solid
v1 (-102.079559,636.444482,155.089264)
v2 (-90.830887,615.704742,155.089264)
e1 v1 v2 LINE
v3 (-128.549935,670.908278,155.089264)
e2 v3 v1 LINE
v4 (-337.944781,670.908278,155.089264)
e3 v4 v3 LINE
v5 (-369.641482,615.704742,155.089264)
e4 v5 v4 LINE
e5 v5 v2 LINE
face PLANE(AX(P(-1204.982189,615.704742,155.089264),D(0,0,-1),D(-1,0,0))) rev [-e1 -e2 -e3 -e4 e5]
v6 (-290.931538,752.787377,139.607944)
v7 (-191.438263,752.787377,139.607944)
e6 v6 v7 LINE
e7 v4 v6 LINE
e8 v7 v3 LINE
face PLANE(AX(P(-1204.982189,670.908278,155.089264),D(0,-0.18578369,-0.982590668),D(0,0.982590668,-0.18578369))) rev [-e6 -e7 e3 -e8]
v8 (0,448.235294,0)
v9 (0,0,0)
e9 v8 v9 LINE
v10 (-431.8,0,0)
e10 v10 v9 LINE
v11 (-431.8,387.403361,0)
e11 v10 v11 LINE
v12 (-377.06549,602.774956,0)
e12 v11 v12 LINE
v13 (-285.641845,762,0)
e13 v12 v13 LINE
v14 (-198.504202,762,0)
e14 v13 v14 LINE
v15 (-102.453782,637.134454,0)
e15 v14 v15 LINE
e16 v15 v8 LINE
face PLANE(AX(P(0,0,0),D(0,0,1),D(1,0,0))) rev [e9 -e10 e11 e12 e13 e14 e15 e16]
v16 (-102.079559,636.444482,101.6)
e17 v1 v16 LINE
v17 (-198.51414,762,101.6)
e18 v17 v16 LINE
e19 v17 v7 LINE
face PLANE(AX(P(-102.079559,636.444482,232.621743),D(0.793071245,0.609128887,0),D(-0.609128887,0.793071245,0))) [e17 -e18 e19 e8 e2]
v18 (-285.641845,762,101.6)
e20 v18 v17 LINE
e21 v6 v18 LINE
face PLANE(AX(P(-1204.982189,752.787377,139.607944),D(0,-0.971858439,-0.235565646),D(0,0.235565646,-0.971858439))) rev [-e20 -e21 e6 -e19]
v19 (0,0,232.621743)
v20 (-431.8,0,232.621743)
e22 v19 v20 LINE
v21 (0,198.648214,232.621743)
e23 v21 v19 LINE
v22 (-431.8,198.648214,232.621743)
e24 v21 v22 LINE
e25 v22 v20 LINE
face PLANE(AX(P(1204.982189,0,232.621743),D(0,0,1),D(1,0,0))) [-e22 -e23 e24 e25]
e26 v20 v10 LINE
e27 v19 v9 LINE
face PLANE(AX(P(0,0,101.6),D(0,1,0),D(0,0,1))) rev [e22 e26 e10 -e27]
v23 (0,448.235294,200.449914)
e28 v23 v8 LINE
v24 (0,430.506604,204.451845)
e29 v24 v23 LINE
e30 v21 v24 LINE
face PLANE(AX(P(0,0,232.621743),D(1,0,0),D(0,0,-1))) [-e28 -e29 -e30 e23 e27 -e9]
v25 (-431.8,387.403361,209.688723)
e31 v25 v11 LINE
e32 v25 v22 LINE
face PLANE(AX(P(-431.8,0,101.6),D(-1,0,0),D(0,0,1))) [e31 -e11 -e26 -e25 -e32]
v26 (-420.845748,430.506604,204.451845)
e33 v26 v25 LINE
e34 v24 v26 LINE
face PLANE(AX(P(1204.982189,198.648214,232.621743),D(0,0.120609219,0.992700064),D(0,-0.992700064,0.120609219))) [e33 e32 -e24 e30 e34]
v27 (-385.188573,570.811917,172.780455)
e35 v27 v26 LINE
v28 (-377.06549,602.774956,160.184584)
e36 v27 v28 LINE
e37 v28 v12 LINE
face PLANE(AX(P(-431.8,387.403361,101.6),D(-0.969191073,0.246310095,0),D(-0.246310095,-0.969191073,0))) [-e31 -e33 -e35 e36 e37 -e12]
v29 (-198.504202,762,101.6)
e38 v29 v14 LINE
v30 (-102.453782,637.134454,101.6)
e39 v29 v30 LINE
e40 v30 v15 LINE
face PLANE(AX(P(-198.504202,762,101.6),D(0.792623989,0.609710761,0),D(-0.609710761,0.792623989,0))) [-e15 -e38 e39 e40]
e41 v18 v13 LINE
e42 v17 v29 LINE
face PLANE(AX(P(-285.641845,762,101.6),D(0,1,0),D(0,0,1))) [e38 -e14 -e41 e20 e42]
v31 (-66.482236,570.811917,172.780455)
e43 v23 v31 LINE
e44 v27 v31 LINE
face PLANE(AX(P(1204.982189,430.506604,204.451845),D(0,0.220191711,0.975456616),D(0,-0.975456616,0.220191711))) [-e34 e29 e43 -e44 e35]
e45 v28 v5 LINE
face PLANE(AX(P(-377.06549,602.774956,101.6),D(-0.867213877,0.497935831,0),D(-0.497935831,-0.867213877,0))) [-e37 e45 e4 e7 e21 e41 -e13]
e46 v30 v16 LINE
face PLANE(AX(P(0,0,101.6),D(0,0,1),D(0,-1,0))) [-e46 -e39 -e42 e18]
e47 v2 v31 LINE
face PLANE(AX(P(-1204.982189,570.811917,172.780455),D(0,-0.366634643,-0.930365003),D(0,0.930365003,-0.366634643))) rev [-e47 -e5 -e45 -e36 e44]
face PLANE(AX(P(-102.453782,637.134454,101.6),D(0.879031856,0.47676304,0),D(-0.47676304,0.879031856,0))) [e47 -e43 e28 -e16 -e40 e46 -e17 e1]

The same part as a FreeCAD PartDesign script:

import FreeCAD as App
import Part
import Sketcher

V = App.Vector
Q = App.Units.Quantity

doc = App.newDocument("Part")
params = doc.addObject("Spreadsheet::Sheet", "Params")
for row, (alias, value) in enumerate([
    ("sketch1_width", "17 in"),
    ("pad1_length", "4 in"),
    ("sketch2_width", "30 in"),
    ("pad2_length", "17 in"),
], start=1):
    params.set(f"A{row}", alias)
    params.set(f"B{row}", "=" + value)
    params.setAlias(f"B{row}", alias)

body = doc.addObject("PartDesign::Body", "Body")

# Sketch on XY plane
sketch1 = doc.addObject("Sketcher::SketchObject", "Sketch")
body.addObject(sketch1)
sketch1.AttachmentSupport = (doc.XY_Plane, [""])
sketch1.MapMode = "FlatFace"
sketch1.addGeometry([
    Part.LineSegment(V(0, 0, 0), V(431.8, 0, 0)),  # 0
    Part.LineSegment(V(431.8, 0, 0), V(431.8, 387.403361, 0)),  # 1
    Part.LineSegment(V(431.8, 387.403361, 0), V(377.06549, 602.774956, 0)),  # 2
    Part.LineSegment(V(377.06549, 602.774956, 0), V(285.641845, 762, 0)),  # 3
    Part.LineSegment(V(285.641845, 762, 0), V(198.504202, 762, 0)),  # 4
    Part.LineSegment(V(198.504202, 762, 0), V(102.453782, 637.134454, 0)),  # 5
    Part.LineSegment(V(102.453782, 637.134454, 0), V(0, 448.235294, 0)),  # 6
    Part.LineSegment(V(0, 448.235294, 0), V(0, 0, 0)),  # 7
], False)
sketch1.addConstraint([
    Sketcher.Constraint("Coincident", 0, 2, 1, 1),
    Sketcher.Constraint("Coincident", 1, 2, 2, 1),
    Sketcher.Constraint("Coincident", 2, 2, 3, 1),
    Sketcher.Constraint("Coincident", 3, 2, 4, 1),
    Sketcher.Constraint("Coincident", 4, 2, 5, 1),
    Sketcher.Constraint("Coincident", 5, 2, 6, 1),
    Sketcher.Constraint("Coincident", 6, 2, 7, 1),
    Sketcher.Constraint("Coincident", 7, 2, 0, 1),
    Sketcher.Constraint("Horizontal", 0),
    Sketcher.Constraint("Vertical", 1),
    Sketcher.Constraint("Horizontal", 4),
    Sketcher.Constraint("Vertical", 7),
    Sketcher.Constraint("Coincident", 7, 2, -1, 1),
    Sketcher.Constraint("DistanceX", 0, 1, 0, 2, Q("17 in")),
    Sketcher.Constraint("DistanceY", -1, 1, 3, 2, Q("30 in")),
    Sketcher.Constraint("DistanceY", 1, 1, 1, 2, Q("387.403361 mm")),
    Sketcher.Constraint("DistanceX", -1, 1, 4, 2, Q("198.504202 mm")),
    Sketcher.Constraint("Distance", 2, Q("222.21789 mm")),
    Sketcher.Constraint("DistanceX", 4, 2, 4, 1, Q("87.137643 mm")),
    Sketcher.Constraint("DistanceY", 7, 2, 7, 1, Q("448.235294 mm")),
    Sketcher.Constraint("DistanceX", -1, 1, 2, 2, Q("377.06549 mm")),
    Sketcher.Constraint("DistanceX", -1, 1, 5, 2, Q("102.453782 mm")),
    Sketcher.Constraint("DistanceY", 6, 2, 5, 2, Q("188.89916 mm")),
])
sketch1.setExpression("Constraints[13]", "Params.sketch1_width")
pad1 = doc.addObject("PartDesign::Pad", "Pad")
body.addObject(pad1)
pad1.Profile = sketch1
pad1.setExpression("Length", "Params.pad1_length")

# Sketch on YZ plane
sketch2 = doc.addObject("Sketcher::SketchObject", "Sketch001")
body.addObject(sketch2)
sketch2.AttachmentSupport = (doc.YZ_Plane, [""])
sketch2.MapMode = "FlatFace"
sketch2.addGeometry([
    Part.LineSegment(V(0, 101.6, 0), V(0, 232.621743, 0)),  # 0
    Part.LineSegment(V(0, 232.621743, 0), V(198.648214, 232.621743, 0)),  # 1
    Part.LineSegment(V(198.648214, 232.621743, 0), V(430.506604, 204.451845, 0)),  # 2
    Part.LineSegment(V(430.506604, 204.451845, 0), V(570.811917, 172.780455, 0)),  # 3
    Part.LineSegment(V(570.811917, 172.780455, 0), V(615.704742, 155.089264, 0)),  # 4
    Part.LineSegment(V(615.704742, 155.089264, 0), V(670.908278, 155.089264, 0)),  # 5
    Part.LineSegment(V(670.908278, 155.089264, 0), V(752.787377, 139.607944, 0)),  # 6
    Part.LineSegment(V(752.787377, 139.607944, 0), V(762, 101.6, 0)),  # 7
    Part.LineSegment(V(762, 101.6, 0), V(0, 101.6, 0)),  # 8
], False)
sketch2.addConstraint([
    Sketcher.Constraint("Coincident", 0, 2, 1, 1),
    Sketcher.Constraint("Coincident", 1, 2, 2, 1),
    Sketcher.Constraint("Coincident", 2, 2, 3, 1),
    Sketcher.Constraint("Coincident", 3, 2, 4, 1),
    Sketcher.Constraint("Coincident", 4, 2, 5, 1),
    Sketcher.Constraint("Coincident", 5, 2, 6, 1),
    Sketcher.Constraint("Coincident", 6, 2, 7, 1),
    Sketcher.Constraint("Coincident", 7, 2, 8, 1),
    Sketcher.Constraint("Coincident", 8, 2, 0, 1),
    Sketcher.Constraint("Vertical", 0),
    Sketcher.Constraint("Horizontal", 1),
    Sketcher.Constraint("Horizontal", 5),
    Sketcher.Constraint("Horizontal", 8),
    Sketcher.Constraint("PointOnObject", 0, 2, -2),
    Sketcher.Constraint("DistanceX", 8, 2, 8, 1, Q("30 in")),
    Sketcher.Constraint("DistanceY", -1, 1, 7, 2, Q("4 in")),
    Sketcher.Constraint("DistanceX", 5, 2, 6, 2, Q("81.879098 mm")),
    Sketcher.Constraint("DistanceY", 6, 2, 2, 2, Q("64.843901 mm")),
    Sketcher.Constraint("DistanceY", 6, 2, 1, 2, Q("93.013799 mm")),
    Sketcher.Constraint("Distance", 7, Q("39.108519 mm")),
    Sketcher.Constraint("DistanceX", 1, 1, 1, 2, Q("198.648214 mm")),
    Sketcher.Constraint("DistanceX", 5, 1, 5, 2, Q("55.203537 mm")),
    Sketcher.Constraint("DistanceY", 0, 1, 0, 2, Q("131.021743 mm")),
    Sketcher.Constraint("DistanceX", 1, 2, 2, 2, Q("231.85839 mm")),
    Sketcher.Constraint("DistanceY", 3, 2, 2, 2, Q("31.67139 mm")),
    Sketcher.Constraint("DistanceY", 4, 2, 3, 2, Q("17.691191 mm")),
    Sketcher.Constraint("DistanceX", 3, 2, 5, 2, Q("100.096362 mm")),
])
sketch2.setExpression("Constraints[14]", "Params.sketch2_width")
pad2 = doc.addObject("PartDesign::Pad", "Pad001")
body.addObject(pad2)
pad2.Profile = sketch2
pad2.setExpression("Length", "Params.pad2_length")

# Sketch on XY plane
sketch3 = doc.addObject("Sketcher::SketchObject", "Sketch002")
body.addObject(sketch3)
sketch3.AttachmentSupport = (doc.XY_Plane, [""])
sketch3.MapMode = "FlatFace"
sketch3.AttachmentOffset = App.Placement(V(0, 0, 4 * 25.4), App.Rotation())
sketch3.addGeometry([
    Part.LineSegment(V(102.079559, 636.444482, 0), V(0, 448.235294, 0)),  # 0
    Part.LineSegment(V(0, 448.235294, 0), V(-179.71587, 482.849418, 0)),  # 1
    Part.LineSegment(V(-179.71587, 482.849418, 0), V(-227.879484, 941.921734, 0)),  # 2
    Part.LineSegment(V(-227.879484, 941.921734, 0), V(205.052343, 987.342816, 0)),  # 3
    Part.LineSegment(V(205.052343, 987.342816, 0), V(205.052343, 770.512584, 0)),  # 4
    Part.LineSegment(V(205.052343, 770.512584, 0), V(102.079559, 636.444482, 0)),  # 5
], False)
sketch3.addConstraint([
    Sketcher.Constraint("Coincident", 0, 2, 1, 1),
    Sketcher.Constraint("Coincident", 1, 2, 2, 1),
    Sketcher.Constraint("Coincident", 2, 2, 3, 1),
    Sketcher.Constraint("Coincident", 3, 2, 4, 1),
    Sketcher.Constraint("Coincident", 4, 2, 5, 1),
    Sketcher.Constraint("Coincident", 5, 2, 0, 1),
    Sketcher.Constraint("Vertical", 4),
    Sketcher.Constraint("PointOnObject", 0, 2, -2),
    Sketcher.Constraint("DistanceY", 1, 2, 3, 2, Q("504.493398 mm")),
    Sketcher.Constraint("Distance", 1, Q("183.018938 mm")),
    Sketcher.Constraint("DistanceY", 4, 2, 4, 1, Q("216.830233 mm")),
    Sketcher.Constraint("DistanceX", 1, 2, -1, 1, Q("179.71587 mm")),
    Sketcher.Constraint("DistanceY", -1, 1, 1, 2, Q("482.849418 mm")),
    Sketcher.Constraint("DistanceX", -1, 1, 5, 2, Q("102.079559 mm")),
    Sketcher.Constraint("DistanceY", -1, 1, 5, 2, Q("636.444482 mm")),
    Sketcher.Constraint("DistanceY", 0, 2, 2, 2, Q("493.68644 mm")),
    Sketcher.Constraint("Distance", 2, Q("461.591946 mm")),
    Sketcher.Constraint("Distance", 3, Q("435.307985 mm")),
])
pocket1 = doc.addObject("PartDesign::Pocket", "Pocket")
body.addObject(pocket1)
pocket1.Profile = sketch3
pocket1.Type = "ThroughAll"
pocket1.Reversed = True

# Sketch on XY plane
sketch4 = doc.addObject("Sketcher::SketchObject", "Sketch003")
body.addObject(sketch4)
sketch4.AttachmentSupport = (doc.XY_Plane, [""])
sketch4.MapMode = "FlatFace"
sketch4.AttachmentOffset = App.Placement(V(0, 0, 4 * 25.4), App.Rotation())
sketch4.addGeometry([
    Part.LineSegment(V(431.8, 387.403361, 0), V(377.06549, 602.774956, 0)),  # 0
    Part.LineSegment(V(377.06549, 602.774956, 0), V(285.641845, 762, 0)),  # 1
    Part.LineSegment(V(285.641845, 762, 0), V(386.64778, 961.526141, 0)),  # 2
    Part.LineSegment(V(386.64778, 961.526141, 0), V(935.090979, 961.526141, 0)),  # 3
    Part.LineSegment(V(935.090979, 961.526141, 0), V(884.913916, 472.949119, 0)),  # 4
    Part.LineSegment(V(884.913916, 472.949119, 0), V(431.8, 387.403361, 0)),  # 5
], False)
sketch4.addConstraint([
    Sketcher.Constraint("Coincident", 0, 2, 1, 1),
    Sketcher.Constraint("Coincident", 1, 2, 2, 1),
    Sketcher.Constraint("Coincident", 2, 2, 3, 1),
    Sketcher.Constraint("Coincident", 3, 2, 4, 1),
    Sketcher.Constraint("Coincident", 4, 2, 5, 1),
    Sketcher.Constraint("Coincident", 5, 2, 0, 1),
    Sketcher.Constraint("Horizontal", 3),
    Sketcher.Constraint("DistanceY", -1, 1, 1, 2, Q("30 in")),
    Sketcher.Constraint("DistanceX", -1, 1, 5, 2, Q("17 in")),
    Sketcher.Constraint("DistanceX", 3, 1, 3, 2, Q("548.4432 mm")),
    Sketcher.Constraint("Distance", 0, Q("222.21789 mm")),
    Sketcher.Constraint("Distance", 5, Q("461.118528 mm")),
    Sketcher.Constraint("DistanceX", -1, 1, 0, 2, Q("377.06549 mm")),
    Sketcher.Constraint("DistanceX", -1, 1, 2, 2, Q("386.64778 mm")),
    Sketcher.Constraint("DistanceY", -1, 1, 2, 2, Q("961.526141 mm")),
    Sketcher.Constraint("DistanceY", -1, 1, 4, 2, Q("472.949119 mm")),
    Sketcher.Constraint("DistanceY", -1, 1, 5, 2, Q("387.403361 mm")),
    Sketcher.Constraint("DistanceX", 1, 2, 4, 2, Q("599.272071 mm")),
])
pocket2 = doc.addObject("PartDesign::Pocket", "Pocket001")
body.addObject(pocket2)
pocket2.Profile = sketch4
pocket2.Type = "ThroughAll"
pocket2.Reversed = True
doc.recompute()

mirrored = doc.addObject("PartDesign::Mirrored", "Mirrored")
body.addObject(mirrored)
mirrored.Originals = [pad1, pad2, pocket1, pocket2]
mirrored.MirrorPlane = (doc.YZ_Plane, [""])
body.Tip = mirrored

# Sketch on XY plane
sketch5 = doc.addObject("Sketcher::SketchObject", "Sketch004")
body.addObject(sketch5)
sketch5.AttachmentSupport = (doc.XY_Plane, [""])
sketch5.MapMode = "FlatFace"
sketch5.addGeometry([
    Part.LineSegment(V(0, 895.069856, 0), V(0, 0, 0)),
    Part.LineSegment(V(0, 0, 0), V(672.51599, 0, 0)),
    Part.LineSegment(V(672.51599, 0, 0), V(672.51599, 895.069856, 0)),
    Part.LineSegment(V(672.51599, 895.069856, 0), V(0, 895.069856, 0)),
], False)
sketch5.addConstraint([
    Sketcher.Constraint("Coincident", 0, 2, 1, 1),
    Sketcher.Constraint("Coincident", 1, 2, 2, 1),
    Sketcher.Constraint("Coincident", 2, 2, 3, 1),
    Sketcher.Constraint("Coincident", 3, 2, 0, 1),
    Sketcher.Constraint("Vertical", 0),
    Sketcher.Constraint("Horizontal", 1),
    Sketcher.Constraint("Vertical", 2),
    Sketcher.Constraint("Horizontal", 3),
    Sketcher.Constraint("Coincident", 0, 2, -1, 1),
    Sketcher.Constraint("DistanceX", 1, 1, 1, 2, Q("672.51599 mm")),
    Sketcher.Constraint("DistanceY", 0, 2, 0, 1, Q("895.069856 mm")),
])
pocket3 = doc.addObject("PartDesign::Pocket", "Pocket002")
body.addObject(pocket3)
pocket3.Profile = sketch5
pocket3.Type = "ThroughAll"
pocket3.Reversed = True

doc.recompute()
